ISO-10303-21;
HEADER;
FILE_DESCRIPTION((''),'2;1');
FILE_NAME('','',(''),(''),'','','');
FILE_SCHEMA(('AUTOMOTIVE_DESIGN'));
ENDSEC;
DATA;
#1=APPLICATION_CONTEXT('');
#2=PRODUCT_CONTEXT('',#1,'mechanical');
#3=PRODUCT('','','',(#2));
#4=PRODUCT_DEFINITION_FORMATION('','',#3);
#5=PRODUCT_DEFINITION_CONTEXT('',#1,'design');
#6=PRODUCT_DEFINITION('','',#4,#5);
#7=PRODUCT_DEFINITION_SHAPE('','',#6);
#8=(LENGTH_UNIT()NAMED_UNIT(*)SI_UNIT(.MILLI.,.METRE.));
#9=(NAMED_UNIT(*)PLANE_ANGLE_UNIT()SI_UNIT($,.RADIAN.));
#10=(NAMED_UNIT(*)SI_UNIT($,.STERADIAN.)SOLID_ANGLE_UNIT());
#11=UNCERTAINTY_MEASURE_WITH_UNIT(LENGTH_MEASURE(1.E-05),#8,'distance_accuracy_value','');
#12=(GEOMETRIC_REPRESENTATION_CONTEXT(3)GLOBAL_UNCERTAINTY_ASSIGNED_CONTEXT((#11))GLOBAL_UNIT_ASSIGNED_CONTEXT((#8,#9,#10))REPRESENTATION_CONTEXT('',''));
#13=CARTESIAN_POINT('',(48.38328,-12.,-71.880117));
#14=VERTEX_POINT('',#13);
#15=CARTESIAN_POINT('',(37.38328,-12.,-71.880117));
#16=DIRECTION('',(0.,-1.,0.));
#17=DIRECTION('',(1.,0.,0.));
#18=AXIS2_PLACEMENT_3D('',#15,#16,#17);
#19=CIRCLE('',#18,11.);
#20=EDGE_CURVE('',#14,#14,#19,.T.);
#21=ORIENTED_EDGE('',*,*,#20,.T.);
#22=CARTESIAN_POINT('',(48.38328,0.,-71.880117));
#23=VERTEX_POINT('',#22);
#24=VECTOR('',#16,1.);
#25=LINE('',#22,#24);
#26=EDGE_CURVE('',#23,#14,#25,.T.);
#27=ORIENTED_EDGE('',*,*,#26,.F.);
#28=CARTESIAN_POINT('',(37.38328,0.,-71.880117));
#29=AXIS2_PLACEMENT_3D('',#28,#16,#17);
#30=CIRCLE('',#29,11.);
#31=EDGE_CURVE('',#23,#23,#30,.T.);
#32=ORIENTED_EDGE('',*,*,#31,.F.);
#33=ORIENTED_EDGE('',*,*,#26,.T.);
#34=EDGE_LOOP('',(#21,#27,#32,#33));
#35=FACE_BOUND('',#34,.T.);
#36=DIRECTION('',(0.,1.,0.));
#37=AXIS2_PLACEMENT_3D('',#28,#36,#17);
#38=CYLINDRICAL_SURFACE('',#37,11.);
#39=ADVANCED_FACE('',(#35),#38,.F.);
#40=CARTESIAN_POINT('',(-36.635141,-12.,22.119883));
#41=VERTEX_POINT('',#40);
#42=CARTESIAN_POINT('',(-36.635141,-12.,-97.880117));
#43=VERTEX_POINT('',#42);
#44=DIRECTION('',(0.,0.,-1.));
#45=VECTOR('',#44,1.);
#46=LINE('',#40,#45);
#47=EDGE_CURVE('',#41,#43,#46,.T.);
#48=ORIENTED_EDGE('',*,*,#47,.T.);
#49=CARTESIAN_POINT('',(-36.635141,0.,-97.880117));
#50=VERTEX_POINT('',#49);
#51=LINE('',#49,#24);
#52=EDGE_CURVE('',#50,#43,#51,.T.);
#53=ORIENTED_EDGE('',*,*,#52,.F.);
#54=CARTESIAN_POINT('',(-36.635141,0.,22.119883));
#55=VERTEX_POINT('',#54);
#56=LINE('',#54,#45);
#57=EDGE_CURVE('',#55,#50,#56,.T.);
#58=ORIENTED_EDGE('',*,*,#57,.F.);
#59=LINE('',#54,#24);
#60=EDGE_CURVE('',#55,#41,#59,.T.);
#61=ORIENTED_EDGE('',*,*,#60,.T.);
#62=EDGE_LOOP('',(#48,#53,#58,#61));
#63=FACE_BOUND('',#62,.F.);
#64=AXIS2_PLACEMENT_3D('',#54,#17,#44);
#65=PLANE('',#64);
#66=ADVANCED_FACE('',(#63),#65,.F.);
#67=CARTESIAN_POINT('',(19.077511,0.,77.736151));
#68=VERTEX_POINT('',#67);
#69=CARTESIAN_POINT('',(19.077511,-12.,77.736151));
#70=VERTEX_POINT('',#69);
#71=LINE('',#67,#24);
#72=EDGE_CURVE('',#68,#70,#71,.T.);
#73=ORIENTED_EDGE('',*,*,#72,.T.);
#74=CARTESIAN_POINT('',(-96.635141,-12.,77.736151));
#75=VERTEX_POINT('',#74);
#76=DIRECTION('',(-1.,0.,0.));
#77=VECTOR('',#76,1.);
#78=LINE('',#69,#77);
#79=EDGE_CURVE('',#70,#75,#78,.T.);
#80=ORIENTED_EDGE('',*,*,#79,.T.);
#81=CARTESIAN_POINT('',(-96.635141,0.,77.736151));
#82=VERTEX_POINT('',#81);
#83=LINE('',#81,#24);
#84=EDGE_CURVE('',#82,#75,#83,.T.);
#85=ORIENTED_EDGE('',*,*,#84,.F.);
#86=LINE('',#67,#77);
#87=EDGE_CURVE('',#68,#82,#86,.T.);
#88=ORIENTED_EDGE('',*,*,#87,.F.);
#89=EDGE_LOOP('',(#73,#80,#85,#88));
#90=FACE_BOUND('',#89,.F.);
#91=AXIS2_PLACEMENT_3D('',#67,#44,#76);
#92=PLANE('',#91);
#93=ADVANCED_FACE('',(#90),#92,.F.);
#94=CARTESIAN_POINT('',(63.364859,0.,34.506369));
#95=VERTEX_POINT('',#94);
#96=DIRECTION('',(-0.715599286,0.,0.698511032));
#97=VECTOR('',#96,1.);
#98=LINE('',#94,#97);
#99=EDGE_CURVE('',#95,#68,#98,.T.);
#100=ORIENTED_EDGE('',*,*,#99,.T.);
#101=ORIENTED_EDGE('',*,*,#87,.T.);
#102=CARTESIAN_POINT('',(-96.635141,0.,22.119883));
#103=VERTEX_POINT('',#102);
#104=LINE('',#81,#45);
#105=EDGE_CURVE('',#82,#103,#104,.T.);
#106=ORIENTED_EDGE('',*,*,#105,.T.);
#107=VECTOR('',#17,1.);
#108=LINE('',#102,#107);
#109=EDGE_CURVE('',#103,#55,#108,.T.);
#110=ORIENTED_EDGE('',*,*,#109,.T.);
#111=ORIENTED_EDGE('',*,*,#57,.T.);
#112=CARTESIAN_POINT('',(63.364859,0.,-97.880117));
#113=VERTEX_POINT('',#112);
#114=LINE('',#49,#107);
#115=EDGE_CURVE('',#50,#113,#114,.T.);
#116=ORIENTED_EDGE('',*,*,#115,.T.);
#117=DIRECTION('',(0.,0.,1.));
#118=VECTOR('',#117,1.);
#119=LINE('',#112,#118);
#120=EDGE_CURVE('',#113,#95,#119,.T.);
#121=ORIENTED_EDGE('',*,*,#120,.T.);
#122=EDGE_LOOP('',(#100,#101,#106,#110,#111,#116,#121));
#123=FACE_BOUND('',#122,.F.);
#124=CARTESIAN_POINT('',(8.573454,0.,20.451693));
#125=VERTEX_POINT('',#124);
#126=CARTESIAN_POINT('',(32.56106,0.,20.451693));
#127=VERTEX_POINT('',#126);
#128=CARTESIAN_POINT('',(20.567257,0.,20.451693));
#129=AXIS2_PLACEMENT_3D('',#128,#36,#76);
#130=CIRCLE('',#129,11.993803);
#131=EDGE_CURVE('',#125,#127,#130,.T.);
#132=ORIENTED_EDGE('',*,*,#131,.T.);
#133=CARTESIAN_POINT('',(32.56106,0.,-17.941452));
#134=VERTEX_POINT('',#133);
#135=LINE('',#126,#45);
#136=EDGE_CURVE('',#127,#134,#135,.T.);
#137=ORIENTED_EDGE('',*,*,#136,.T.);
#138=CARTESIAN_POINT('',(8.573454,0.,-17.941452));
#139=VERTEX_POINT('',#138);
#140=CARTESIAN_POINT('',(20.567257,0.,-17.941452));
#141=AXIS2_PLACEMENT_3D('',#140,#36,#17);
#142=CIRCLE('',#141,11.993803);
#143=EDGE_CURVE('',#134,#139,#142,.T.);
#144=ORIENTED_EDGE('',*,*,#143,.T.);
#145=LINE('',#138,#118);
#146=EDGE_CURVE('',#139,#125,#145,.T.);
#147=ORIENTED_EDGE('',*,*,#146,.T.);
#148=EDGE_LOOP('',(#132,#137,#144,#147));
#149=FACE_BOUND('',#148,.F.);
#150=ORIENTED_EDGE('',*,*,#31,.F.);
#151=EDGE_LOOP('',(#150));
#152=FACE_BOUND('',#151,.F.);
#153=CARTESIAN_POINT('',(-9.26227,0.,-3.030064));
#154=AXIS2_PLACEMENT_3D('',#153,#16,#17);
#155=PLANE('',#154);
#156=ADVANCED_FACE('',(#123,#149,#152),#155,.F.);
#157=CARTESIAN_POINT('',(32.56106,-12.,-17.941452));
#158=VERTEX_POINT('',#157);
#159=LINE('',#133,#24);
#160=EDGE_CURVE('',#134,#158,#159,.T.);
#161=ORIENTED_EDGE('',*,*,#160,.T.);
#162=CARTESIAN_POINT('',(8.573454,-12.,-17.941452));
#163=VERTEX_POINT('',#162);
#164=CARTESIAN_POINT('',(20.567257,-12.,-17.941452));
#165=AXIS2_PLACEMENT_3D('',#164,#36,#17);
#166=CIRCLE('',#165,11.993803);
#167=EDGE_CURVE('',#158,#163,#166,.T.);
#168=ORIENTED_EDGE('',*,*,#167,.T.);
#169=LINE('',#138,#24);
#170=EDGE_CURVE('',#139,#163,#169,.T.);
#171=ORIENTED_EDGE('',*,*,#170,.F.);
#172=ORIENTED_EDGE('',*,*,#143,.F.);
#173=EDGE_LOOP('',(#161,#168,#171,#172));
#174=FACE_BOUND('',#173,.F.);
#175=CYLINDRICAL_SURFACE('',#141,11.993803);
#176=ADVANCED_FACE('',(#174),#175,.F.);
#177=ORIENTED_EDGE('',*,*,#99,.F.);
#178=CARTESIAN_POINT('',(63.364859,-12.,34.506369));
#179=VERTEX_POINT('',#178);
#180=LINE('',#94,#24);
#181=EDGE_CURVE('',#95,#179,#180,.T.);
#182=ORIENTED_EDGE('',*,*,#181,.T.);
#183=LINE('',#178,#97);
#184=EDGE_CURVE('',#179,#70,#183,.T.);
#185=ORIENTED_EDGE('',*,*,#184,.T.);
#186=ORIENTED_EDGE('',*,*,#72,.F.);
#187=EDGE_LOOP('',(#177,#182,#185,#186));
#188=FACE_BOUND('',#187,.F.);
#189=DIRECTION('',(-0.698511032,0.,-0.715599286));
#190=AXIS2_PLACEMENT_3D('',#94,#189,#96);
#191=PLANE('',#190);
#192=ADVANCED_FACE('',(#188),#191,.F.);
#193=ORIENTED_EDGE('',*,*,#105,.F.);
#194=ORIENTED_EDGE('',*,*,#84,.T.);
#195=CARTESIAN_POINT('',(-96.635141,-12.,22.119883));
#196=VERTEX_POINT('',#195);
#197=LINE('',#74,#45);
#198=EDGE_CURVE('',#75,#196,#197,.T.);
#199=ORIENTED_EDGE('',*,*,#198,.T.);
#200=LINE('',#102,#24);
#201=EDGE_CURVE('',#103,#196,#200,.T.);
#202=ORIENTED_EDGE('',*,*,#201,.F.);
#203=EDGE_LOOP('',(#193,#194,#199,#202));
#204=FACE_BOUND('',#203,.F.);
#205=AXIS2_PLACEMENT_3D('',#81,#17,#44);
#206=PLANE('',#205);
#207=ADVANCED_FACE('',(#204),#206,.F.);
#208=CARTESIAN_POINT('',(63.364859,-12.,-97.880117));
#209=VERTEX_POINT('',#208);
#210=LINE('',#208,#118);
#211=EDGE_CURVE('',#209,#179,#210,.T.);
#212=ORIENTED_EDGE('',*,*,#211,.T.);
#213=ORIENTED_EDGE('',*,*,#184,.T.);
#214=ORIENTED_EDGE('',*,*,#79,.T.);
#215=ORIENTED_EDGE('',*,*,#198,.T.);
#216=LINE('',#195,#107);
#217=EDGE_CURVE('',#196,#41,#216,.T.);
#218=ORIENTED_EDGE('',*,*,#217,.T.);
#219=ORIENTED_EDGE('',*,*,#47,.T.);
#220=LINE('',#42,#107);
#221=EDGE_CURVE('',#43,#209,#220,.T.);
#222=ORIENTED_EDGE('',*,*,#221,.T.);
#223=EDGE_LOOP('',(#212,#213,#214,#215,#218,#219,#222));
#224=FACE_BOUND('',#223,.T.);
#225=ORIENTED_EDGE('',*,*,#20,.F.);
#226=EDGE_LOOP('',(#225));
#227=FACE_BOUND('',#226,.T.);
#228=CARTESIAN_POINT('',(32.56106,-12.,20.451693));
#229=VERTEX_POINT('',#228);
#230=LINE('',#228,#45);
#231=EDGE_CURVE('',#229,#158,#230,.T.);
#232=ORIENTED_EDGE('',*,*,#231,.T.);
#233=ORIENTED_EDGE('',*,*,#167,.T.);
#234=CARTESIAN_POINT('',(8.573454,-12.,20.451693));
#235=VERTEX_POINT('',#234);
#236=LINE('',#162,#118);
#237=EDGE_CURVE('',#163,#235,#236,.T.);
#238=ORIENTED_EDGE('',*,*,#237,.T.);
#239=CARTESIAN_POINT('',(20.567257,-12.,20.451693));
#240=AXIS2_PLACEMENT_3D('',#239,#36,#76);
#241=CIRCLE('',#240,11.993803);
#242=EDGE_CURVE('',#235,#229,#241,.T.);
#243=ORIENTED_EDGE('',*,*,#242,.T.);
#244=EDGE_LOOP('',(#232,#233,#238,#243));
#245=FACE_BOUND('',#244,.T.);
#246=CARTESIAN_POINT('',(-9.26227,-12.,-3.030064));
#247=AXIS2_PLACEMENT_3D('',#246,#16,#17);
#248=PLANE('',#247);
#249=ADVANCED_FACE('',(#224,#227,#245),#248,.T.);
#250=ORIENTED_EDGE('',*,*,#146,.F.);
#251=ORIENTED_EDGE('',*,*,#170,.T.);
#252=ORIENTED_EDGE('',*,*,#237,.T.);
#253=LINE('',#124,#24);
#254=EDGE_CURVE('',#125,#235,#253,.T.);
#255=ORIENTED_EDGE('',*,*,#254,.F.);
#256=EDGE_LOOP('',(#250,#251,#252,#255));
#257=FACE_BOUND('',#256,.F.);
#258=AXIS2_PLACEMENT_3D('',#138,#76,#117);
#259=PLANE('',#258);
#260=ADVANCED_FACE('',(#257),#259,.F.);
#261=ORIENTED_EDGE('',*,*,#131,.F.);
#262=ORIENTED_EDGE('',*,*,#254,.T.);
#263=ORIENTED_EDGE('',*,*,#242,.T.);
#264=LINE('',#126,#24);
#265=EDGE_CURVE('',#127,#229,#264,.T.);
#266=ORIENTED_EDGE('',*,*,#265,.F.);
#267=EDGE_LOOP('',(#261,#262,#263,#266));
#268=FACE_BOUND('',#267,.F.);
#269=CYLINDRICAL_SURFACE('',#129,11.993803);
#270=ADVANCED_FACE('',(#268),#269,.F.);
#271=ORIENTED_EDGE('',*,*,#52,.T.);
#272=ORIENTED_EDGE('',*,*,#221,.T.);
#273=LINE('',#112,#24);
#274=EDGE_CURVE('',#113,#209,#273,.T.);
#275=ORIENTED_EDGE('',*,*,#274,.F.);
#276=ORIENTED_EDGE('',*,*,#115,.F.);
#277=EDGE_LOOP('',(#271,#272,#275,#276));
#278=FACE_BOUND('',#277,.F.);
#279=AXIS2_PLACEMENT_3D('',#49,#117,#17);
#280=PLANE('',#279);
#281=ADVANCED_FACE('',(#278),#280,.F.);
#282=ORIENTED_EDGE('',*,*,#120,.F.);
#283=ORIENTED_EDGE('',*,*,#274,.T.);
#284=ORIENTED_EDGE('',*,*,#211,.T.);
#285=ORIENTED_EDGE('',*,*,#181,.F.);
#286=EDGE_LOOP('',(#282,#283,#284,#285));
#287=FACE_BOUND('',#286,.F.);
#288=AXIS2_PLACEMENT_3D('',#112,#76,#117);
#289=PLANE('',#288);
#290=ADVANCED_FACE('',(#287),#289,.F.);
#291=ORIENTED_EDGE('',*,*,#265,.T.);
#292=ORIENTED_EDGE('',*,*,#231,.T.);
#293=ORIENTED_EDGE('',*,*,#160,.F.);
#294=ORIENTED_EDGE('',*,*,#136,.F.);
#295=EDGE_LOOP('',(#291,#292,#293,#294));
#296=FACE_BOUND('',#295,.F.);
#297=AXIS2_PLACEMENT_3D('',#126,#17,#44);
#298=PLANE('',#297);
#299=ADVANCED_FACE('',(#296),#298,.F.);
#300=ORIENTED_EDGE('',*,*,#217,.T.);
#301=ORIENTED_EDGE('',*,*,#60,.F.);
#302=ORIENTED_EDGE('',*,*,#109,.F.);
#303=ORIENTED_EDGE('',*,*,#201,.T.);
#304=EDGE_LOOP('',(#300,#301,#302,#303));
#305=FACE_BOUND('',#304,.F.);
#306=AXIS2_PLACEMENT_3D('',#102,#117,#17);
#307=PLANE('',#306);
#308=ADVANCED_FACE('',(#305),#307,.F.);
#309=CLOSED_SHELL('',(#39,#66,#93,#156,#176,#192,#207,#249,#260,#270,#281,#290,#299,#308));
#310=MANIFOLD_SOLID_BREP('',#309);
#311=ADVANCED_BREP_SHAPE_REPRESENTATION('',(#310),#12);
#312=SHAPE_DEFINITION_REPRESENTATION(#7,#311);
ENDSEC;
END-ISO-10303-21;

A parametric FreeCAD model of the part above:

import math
import FreeCAD as App
import Part
import Sketcher


def add_polygon(sketch, points):
    """Adds a closed chain of lines whose ends are joined by coincident constraints."""
    first, n = sketch.GeometryCount, len(points)
    for a, b in zip(points, points[1:] + points[:1]):
        sketch.addGeometry(Part.LineSegment(App.Vector(*a, 0), App.Vector(*b, 0)), False)
    for i in range(n):
        sketch.addConstraint(Sketcher.Constraint("Coincident", first + i, 2, first + (i + 1) % n, 1))

doc = App.newDocument("Part")
body = doc.addObject("PartDesign::Body", "Body")

sketch1 = body.newObject("Sketcher::SketchObject", "Sketch")
sketch1.AttachmentSupport = (doc.getObject("XZ_Plane"), [""])
sketch1.MapMode = "FlatFace"
add_polygon(sketch1, [(63, 35), (19, 78), (-97, 78), (-97, 22), (-37, 22), (-37, -98), (63, -98)])
sketch1.addGeometry(Part.Circle(App.Vector(37, -72, 0), App.Vector(0, 0, 1), 11), False)
sketch1.addGeometry(Part.LineSegment(App.Vector(9, -18, 0), App.Vector(9, 20, 0)), False)
sketch1.addGeometry(Part.ArcOfCircle(Part.Circle(App.Vector(21, 20, 0), App.Vector(0, 0, 1), 12), math.radians(0), math.radians(180)), False)
sketch1.addGeometry(Part.LineSegment(App.Vector(33, 20, 0), App.Vector(33, -18, 0)), False)
sketch1.addGeometry(Part.ArcOfCircle(Part.Circle(App.Vector(21, -18, 0), App.Vector(0, 0, 1), 12), math.radians(180), math.radians(360)), False)
sketch1.addConstraint(Sketcher.Constraint("Tangent", 8, 2, 9, 2))
sketch1.addConstraint(Sketcher.Constraint("Tangent", 9, 1, 10, 1))
sketch1.addConstraint(Sketcher.Constraint("Tangent", 10, 2, 11, 2))
sketch1.addConstraint(Sketcher.Constraint("Tangent", 11, 1, 8, 1))
sketch1.addConstraint(Sketcher.Constraint("Horizontal", 1))
sketch1.addConstraint(Sketcher.Constraint("Vertical", 2))
sketch1.addConstraint(Sketcher.Constraint("Horizontal", 3))
sketch1.addConstraint(Sketcher.Constraint("Vertical", 4))
sketch1.addConstraint(Sketcher.Constraint("Horizontal", 5))
sketch1.addConstraint(Sketcher.Constraint("Vertical", 6))
sketch1.addConstraint(Sketcher.Constraint("Vertical", 8))
sketch1.addConstraint(Sketcher.Constraint("Vertical", 10))
sketch1.addConstraint(Sketcher.Constraint("Diameter", 7, 22.0))
sketch1.addConstraint(Sketcher.Constraint("DistanceX", 3, 1, 3, 2, 60.0))
sketch1.addConstraint(Sketcher.Constraint("DistanceX", 5, 1, 5, 2, 100.0))
sketch1.addConstraint(Sketcher.Constraint("DistanceY", 4, 2, 4, 1, 120.0))
sketch1.addConstraint(Sketcher.Constraint("DistanceY", 7, 3, 2, 2, 94.0))
sketch1.addConstraint(Sketcher.Constraint("Radius", 9, 11.993803))
sketch1.addConstraint(Sketcher.Constraint("DistanceY", 2, 2, 2, 1, 55.616268))
sketch1.addConstraint(Sketcher.Constraint("DistanceX", 1, 2, 9, 3, 117.202398))
sketch1.addConstraint(Sketcher.Constraint("DistanceX", 1, 2, 1, 1, 115.712652))
sketch1.addConstraint(Sketcher.Constraint("DistanceY", 6, 1, 6, 2, 132.386486))
sketch1.addConstraint(Sketcher.Constraint("DistanceY", 8, 1, 8, 2, 38.393145))
sketch1.addConstraint(Sketcher.Constraint("DistanceX", -1, 1, 7, 3, 37.38328))
sketch1.addConstraint(Sketcher.Constraint("DistanceX", -1, 1, 0, 2, 19.077511))
sketch1.addConstraint(Sketcher.Constraint("DistanceY", -1, 1, 0, 2, 77.736151))
sketch1.addConstraint(Sketcher.Constraint("DistanceY", 7, 3, 9, 3, 92.33181))
pad1 = body.newObject("PartDesign::Pad", "Pad")
pad1.Profile = sketch1
pad1.Length = 12

doc.recompute()
